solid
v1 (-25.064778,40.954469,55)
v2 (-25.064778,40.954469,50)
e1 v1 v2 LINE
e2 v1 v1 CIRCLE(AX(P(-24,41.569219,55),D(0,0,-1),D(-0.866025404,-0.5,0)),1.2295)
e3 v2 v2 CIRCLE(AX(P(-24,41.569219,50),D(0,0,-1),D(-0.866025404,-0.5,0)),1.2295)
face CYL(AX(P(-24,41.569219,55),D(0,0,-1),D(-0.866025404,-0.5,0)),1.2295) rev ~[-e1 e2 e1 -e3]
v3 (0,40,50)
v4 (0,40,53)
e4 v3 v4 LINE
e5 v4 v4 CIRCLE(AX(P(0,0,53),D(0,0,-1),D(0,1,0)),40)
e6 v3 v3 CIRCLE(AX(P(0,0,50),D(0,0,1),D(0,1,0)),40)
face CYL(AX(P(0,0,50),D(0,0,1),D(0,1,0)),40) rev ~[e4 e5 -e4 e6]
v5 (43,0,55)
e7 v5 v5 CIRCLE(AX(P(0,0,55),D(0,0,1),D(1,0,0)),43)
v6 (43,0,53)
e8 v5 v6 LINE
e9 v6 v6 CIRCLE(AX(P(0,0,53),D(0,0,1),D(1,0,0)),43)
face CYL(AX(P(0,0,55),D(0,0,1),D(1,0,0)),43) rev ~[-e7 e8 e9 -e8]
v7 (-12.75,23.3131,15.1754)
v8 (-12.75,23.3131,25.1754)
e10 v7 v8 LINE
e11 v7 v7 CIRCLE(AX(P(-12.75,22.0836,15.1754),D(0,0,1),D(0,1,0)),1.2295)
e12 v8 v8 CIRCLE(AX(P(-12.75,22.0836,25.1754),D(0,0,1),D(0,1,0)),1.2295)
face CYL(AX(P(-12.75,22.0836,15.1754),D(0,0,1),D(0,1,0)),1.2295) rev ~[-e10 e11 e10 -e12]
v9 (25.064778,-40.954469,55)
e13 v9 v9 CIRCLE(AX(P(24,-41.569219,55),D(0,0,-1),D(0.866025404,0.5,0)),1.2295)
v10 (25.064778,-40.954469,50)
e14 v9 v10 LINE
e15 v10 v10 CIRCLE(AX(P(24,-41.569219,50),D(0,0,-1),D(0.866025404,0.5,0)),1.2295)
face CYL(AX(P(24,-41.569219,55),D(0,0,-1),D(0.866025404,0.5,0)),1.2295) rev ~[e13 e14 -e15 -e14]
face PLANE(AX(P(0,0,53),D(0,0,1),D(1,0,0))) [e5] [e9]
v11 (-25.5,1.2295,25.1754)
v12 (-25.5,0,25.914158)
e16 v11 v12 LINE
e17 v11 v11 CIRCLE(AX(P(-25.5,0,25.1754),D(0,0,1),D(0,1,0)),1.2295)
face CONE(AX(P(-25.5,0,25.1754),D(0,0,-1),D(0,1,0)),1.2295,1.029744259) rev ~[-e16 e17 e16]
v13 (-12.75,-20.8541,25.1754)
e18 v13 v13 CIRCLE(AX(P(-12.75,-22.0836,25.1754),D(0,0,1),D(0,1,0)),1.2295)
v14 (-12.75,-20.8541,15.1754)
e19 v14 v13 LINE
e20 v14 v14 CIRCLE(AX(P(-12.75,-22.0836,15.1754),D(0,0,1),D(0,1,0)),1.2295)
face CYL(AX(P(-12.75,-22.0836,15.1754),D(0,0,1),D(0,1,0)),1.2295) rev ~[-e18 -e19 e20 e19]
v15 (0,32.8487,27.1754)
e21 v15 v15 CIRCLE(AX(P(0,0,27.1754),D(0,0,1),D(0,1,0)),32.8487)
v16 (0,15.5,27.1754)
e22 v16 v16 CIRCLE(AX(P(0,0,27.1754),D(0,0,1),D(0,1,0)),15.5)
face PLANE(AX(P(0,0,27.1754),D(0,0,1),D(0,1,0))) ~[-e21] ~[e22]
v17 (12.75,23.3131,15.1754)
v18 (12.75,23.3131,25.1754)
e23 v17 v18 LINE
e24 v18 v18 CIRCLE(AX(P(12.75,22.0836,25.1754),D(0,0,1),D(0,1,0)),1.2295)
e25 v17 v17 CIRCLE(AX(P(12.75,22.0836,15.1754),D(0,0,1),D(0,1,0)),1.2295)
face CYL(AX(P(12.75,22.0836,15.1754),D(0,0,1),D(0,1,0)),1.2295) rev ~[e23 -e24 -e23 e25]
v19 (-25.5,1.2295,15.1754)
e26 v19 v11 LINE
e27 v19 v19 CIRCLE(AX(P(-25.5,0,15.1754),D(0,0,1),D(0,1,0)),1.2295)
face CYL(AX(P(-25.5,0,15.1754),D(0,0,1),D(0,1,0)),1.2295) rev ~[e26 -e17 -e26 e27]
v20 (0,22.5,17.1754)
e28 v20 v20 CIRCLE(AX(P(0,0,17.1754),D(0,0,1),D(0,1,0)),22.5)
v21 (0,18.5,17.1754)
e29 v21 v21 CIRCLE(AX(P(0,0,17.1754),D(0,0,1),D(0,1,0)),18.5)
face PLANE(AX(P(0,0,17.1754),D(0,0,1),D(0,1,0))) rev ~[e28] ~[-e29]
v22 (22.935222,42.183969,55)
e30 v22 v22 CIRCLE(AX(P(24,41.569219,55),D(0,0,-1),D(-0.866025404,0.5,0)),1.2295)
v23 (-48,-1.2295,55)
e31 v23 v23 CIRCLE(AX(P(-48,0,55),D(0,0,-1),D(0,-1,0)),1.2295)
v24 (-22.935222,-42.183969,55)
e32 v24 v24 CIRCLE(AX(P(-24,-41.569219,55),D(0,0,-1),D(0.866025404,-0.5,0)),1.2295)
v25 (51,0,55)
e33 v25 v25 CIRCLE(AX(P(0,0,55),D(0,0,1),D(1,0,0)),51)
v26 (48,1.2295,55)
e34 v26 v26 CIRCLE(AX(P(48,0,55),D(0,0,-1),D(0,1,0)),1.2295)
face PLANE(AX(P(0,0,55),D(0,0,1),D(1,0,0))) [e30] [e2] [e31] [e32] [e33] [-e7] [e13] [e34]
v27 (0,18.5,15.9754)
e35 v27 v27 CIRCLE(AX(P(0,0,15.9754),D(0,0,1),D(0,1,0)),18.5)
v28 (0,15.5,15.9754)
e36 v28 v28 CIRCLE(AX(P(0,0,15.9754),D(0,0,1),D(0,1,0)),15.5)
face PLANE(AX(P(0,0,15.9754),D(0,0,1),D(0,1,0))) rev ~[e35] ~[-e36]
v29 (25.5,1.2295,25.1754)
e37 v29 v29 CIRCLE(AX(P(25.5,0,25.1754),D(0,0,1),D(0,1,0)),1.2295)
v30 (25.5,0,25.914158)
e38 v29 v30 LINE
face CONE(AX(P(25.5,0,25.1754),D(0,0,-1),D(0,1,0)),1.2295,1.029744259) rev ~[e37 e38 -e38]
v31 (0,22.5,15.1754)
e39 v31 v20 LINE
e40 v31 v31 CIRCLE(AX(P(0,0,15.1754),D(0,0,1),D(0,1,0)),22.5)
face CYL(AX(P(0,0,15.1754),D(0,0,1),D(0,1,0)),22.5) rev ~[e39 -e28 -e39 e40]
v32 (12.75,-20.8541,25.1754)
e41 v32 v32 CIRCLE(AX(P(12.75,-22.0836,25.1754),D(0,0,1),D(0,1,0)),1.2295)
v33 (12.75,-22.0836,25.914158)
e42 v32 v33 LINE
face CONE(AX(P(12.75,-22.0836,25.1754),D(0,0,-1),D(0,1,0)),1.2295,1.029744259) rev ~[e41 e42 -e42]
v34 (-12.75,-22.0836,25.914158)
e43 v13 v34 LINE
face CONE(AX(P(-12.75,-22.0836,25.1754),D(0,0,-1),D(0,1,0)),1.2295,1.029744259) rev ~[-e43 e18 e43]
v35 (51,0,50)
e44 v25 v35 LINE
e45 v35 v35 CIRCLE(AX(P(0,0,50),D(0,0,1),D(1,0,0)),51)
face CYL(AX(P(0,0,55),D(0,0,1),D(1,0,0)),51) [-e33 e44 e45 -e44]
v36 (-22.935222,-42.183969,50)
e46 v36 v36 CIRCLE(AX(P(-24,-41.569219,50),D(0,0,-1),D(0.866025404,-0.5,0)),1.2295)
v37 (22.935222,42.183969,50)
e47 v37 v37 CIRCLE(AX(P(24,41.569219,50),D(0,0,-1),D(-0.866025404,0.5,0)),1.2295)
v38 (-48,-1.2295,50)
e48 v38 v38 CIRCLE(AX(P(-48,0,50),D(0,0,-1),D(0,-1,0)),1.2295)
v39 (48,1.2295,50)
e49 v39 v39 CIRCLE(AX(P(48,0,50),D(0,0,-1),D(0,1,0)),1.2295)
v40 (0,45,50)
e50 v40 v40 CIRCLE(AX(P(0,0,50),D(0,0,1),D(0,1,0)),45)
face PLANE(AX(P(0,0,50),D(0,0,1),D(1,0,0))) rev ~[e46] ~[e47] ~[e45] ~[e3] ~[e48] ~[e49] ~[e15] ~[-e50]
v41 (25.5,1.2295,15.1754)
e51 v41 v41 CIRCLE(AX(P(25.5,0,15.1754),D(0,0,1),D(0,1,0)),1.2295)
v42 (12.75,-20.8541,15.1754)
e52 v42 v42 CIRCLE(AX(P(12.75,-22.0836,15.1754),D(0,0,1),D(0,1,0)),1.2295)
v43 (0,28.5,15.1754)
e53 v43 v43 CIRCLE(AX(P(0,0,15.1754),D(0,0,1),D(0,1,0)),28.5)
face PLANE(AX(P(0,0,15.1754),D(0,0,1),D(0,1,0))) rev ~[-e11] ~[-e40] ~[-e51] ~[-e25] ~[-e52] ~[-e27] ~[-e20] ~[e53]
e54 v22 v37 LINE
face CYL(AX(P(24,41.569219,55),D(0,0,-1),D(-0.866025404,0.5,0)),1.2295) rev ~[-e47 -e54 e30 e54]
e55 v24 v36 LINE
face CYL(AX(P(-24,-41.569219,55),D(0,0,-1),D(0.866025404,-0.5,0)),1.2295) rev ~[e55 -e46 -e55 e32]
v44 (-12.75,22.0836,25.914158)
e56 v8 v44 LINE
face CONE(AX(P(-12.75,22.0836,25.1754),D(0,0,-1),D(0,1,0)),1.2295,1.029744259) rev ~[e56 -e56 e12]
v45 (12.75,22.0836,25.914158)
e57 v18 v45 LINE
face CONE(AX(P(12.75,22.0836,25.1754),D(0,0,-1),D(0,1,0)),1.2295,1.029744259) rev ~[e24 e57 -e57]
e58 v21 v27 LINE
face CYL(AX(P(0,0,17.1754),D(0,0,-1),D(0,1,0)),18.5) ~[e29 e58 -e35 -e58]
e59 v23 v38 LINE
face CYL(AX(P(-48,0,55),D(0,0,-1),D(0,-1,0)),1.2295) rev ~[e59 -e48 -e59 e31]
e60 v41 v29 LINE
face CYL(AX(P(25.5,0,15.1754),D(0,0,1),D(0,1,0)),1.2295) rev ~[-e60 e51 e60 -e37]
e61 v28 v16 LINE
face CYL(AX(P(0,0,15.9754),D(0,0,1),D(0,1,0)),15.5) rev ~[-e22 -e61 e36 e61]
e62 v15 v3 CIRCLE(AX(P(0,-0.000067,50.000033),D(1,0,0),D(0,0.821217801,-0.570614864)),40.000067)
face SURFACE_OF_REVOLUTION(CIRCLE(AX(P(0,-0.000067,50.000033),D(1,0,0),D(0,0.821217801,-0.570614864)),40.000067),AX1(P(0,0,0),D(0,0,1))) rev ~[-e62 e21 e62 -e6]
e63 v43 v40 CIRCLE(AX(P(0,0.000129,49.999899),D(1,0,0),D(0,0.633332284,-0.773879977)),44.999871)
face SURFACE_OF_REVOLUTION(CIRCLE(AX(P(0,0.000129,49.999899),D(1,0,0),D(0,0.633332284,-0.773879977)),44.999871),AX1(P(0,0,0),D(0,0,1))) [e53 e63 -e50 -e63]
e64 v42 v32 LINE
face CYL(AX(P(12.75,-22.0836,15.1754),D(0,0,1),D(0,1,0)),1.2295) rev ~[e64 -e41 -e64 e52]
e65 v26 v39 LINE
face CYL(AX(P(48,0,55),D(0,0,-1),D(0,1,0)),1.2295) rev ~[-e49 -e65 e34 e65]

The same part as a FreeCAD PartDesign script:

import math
import FreeCAD as App
import Part
import Sketcher
from FreeCAD import Vector
Q = App.Units.Quantity

doc = App.newDocument("Part")
body = doc.addObject("PartDesign::Body", "Body")

# Sketch on YZ plane
sketch1 = body.newObject("Sketcher::SketchObject", "Sketch")
sketch1.AttachmentSupport = (doc.getObject("YZ_Plane"), [""])
sketch1.MapMode = "FlatFace"
sketch1.addGeometry([
    Part.ArcOfCircle(Part.Circle(Vector(0, 50, 0), Vector(0, 0, 1), 40), math.radians(-35), math.radians(0)),  # 0
    Part.LineSegment(Vector(32.8, 27.2, 0), Vector(15.5, 27.2, 0)),  # 1
    Part.LineSegment(Vector(15.5, 27.2, 0), Vector(15.5, 16, 0)),  # 2
    Part.LineSegment(Vector(15.5, 16, 0), Vector(18.5, 16, 0)),  # 3
    Part.LineSegment(Vector(18.5, 16, 0), Vector(18.5, 17.2, 0)),  # 4
    Part.LineSegment(Vector(18.5, 17.2, 0), Vector(22.5, 17.2, 0)),  # 5
    Part.LineSegment(Vector(22.5, 17.2, 0), Vector(22.5, 15.2, 0)),  # 6
    Part.LineSegment(Vector(22.5, 15.2, 0), Vector(28.5, 15.2, 0)),  # 7
    Part.ArcOfCircle(Part.Circle(Vector(0, 50, 0), Vector(0, 0, 1), 45), math.radians(-51), math.radians(0)),  # 8
    Part.LineSegment(Vector(45, 50, 0), Vector(45, 55, 0)),  # 9
    Part.LineSegment(Vector(45, 55, 0), Vector(40, 55, 0)),  # 10
    Part.LineSegment(Vector(40, 55, 0), Vector(40, 50, 0)),  # 11
], False)
sketch1.addConstraint([
    Sketcher.Constraint("Coincident", 0, 1, 1, 1),
    Sketcher.Constraint("Coincident", 1, 2, 2, 1),
    Sketcher.Constraint("Coincident", 2, 2, 3, 1),
    Sketcher.Constraint("Coincident", 3, 2, 4, 1),
    Sketcher.Constraint("Coincident", 4, 2, 5, 1),
    Sketcher.Constraint("Coincident", 5, 2, 6, 1),
    Sketcher.Constraint("Coincident", 6, 2, 7, 1),
    Sketcher.Constraint("Coincident", 7, 2, 8, 1),
    Sketcher.Constraint("Tangent", 8, 2, 9, 1),
    Sketcher.Constraint("Coincident", 9, 2, 10, 1),
    Sketcher.Constraint("Coincident", 10, 2, 11, 1),
    Sketcher.Constraint("Tangent", 11, 2, 0, 2),
    Sketcher.Constraint("Horizontal", 1),
    Sketcher.Constraint("Vertical", 2),
    Sketcher.Constraint("Horizontal", 3),
    Sketcher.Constraint("Vertical", 4),
    Sketcher.Constraint("Horizontal", 5),
    Sketcher.Constraint("Vertical", 6),
    Sketcher.Constraint("Horizontal", 7),
    Sketcher.Constraint("Vertical", 9),
    Sketcher.Constraint("Horizontal", 10),
    Sketcher.Constraint("Vertical", 11),
    Sketcher.Constraint("Coincident", 8, 3, 0, 3),
    Sketcher.Constraint("PointOnObject", 0, 3, -2),
    Sketcher.Constraint("Equal", 10, 9),
    Sketcher.Constraint("Radius", 8, Q("45 mm")),
    Sketcher.Constraint("DistanceX", 3, 1, 3, 2, Q("3 mm")),
    Sketcher.Constraint("DistanceX", 5, 1, 5, 2, Q("4 mm")),
    Sketcher.Constraint("DistanceX", 7, 1, 7, 2, Q("6 mm")),
    Sketcher.Constraint("DistanceX", 10, 2, 10, 1, Q("5 mm")),
    Sketcher.Constraint("DistanceY", 6, 2, 6, 1, Q("2 mm")),
    Sketcher.Constraint("DistanceY", 4, 1, 4, 2, Q("1.2 mm")),
    Sketcher.Constraint("DistanceY", -1, 1, 0, 3, Q("50 mm")),
    Sketcher.Constraint("DistanceY", 4, 2, 1, 2, Q("10 mm")),
    Sketcher.Constraint("DistanceX", 1, 2, 1, 1, Q("17.3487 mm")),
])
revolution = body.newObject("PartDesign::Revolution", "Revolution")
revolution.Profile = sketch1
revolution.ReferenceAxis = (sketch1, ["V_Axis"])
revolution.Angle = 360

# Sketch on XY plane
sketch2 = body.newObject("Sketcher::SketchObject", "Sketch001")
sketch2.AttachmentSupport = (doc.getObject("XY_Plane"), [""])
sketch2.MapMode = "FlatFace"
sketch2.AttachmentOffset = App.Placement(Vector(0, 0, 15.1754), App.Rotation())
sketch2.addGeometry([
    Part.Circle(Vector(25.5, 0, 0), Vector(0, 0, 1), 1.2),  # 0
    Part.Circle(Vector(12.8, -22.1, 0), Vector(0, 0, 1), 1.2),  # 1
    Part.Circle(Vector(-12.8, -22.1, 0), Vector(0, 0, 1), 1.2),  # 2
    Part.Circle(Vector(-25.5, 0, 0), Vector(0, 0, 1), 1.2),  # 3
    Part.Circle(Vector(-12.8, 22.1, 0), Vector(0, 0, 1), 1.2),  # 4
    Part.Circle(Vector(12.8, 22.1, 0), Vector(0, 0, 1), 1.2),  # 5
], False)
sketch2.addConstraint([
    Sketcher.Constraint("Equal", 0, 1),
    Sketcher.Constraint("Equal", 1, 2),
    Sketcher.Constraint("Equal", 2, 3),
    Sketcher.Constraint("Equal", 3, 4),
    Sketcher.Constraint("Equal", 4, 5),
    Sketcher.Constraint("Symmetric", 0, 3, 3, 3, -1, 1),
    Sketcher.Constraint("Symmetric", 1, 3, 4, 3, -1, 1),
    Sketcher.Constraint("Symmetric", 2, 3, 5, 3, -1, 1),
    Sketcher.Constraint("Symmetric", 1, 3, 2, 3, -2),
    Sketcher.Constraint("PointOnObject", 0, 3, -1),
    Sketcher.Constraint("Diameter", 0, Q("2.459 mm")),
    Sketcher.Constraint("DistanceX", 3, 3, 0, 3, Q("51 mm")),
    Sketcher.Constraint("DistanceX", 2, 3, 1, 3, Q("25.5 mm")),
    Sketcher.Constraint("DistanceY", 1, 3, -1, 1, Q("22.0836 mm")),
])
doc.recompute()
hole = body.newObject("PartDesign::Hole", "Hole")
hole.Profile = sketch2
hole.ThreadType = "None"
hole.Diameter = 2.459
hole.DepthType = "Dimension"
hole.Depth = 10
hole.DrillPoint = "Angled"
hole.DrillPointAngle = 118
hole.Reversed = True

# Sketch on XY plane
sketch3 = body.newObject("Sketcher::SketchObject", "Sketch002")
sketch3.AttachmentSupport = (doc.getObject("XY_Plane"), [""])
sketch3.MapMode = "FlatFace"
sketch3.AttachmentOffset = App.Placement(Vector(0, 0, 55), App.Rotation())
sketch3.addGeometry([
    Part.Circle(Vector(0, 0, 0), Vector(0, 0, 1), 51),
    Part.Circle(Vector(0, 0, 0), Vector(0, 0, 1), 45),
], False)
sketch3.addConstraint([
    Sketcher.Constraint("Coincident", 0, 3, -1, 1),
    Sketcher.Constraint("Coincident", 1, 3, -1, 1),
    Sketcher.Constraint("Diameter", 0, Q("102 mm")),
    Sketcher.Constraint("Diameter", 1, Q("90 mm")),
])
pad1 = body.newObject("PartDesign::Pad", "Pad")
pad1.Profile = sketch3
pad1.Length = 5
pad1.Reversed = True

# Sketch on XY plane
sketch4 = body.newObject("Sketcher::SketchObject", "Sketch003")
sketch4.AttachmentSupport = (doc.getObject("XY_Plane"), [""])
sketch4.MapMode = "FlatFace"
sketch4.AttachmentOffset = App.Placement(Vector(0, 0, 55), App.Rotation())
sketch4.addGeometry([
    Part.Circle(Vector(0, 0, 0), Vector(0, 0, 1), 43),
    Part.Circle(Vector(0, 0, 0), Vector(0, 0, 1), 40),
], False)
sketch4.addConstraint([
    Sketcher.Constraint("Coincident", 0, 3, -1, 1),
    Sketcher.Constraint("Coincident", 1, 3, -1, 1),
    Sketcher.Constraint("Diameter", 0, Q("86 mm")),
    Sketcher.Constraint("Diameter", 1, Q("80 mm")),
])
pocket1 = body.newObject("PartDesign::Pocket", "Pocket")
pocket1.Profile = sketch4
pocket1.Length = 2

# Sketch on XY plane
sketch5 = body.newObject("Sketcher::SketchObject", "Sketch004")
sketch5.AttachmentSupport = (doc.getObject("XY_Plane"), [""])
sketch5.MapMode = "FlatFace"
sketch5.AttachmentOffset = App.Placement(Vector(0, 0, 55), App.Rotation())
sketch5.addGeometry(Part.Circle(Vector(-48, 0, 0), Vector(0, 0, 1), 1.2), False)
sketch5.addConstraint([
    Sketcher.Constraint("PointOnObject", 0, 3, -1),
    Sketcher.Constraint("Diameter", 0, Q("2.459 mm")),
    Sketcher.Constraint("DistanceX", 0, 3, -1, 1, Q("48 mm")),
])
doc.recompute()
hole2 = body.newObject("PartDesign::Hole", "Hole001")
hole2.Profile = sketch5
hole2.ThreadType = "None"
hole2.Diameter = 2.459
hole2.DepthType = "ThroughAll"
doc.recompute()

polarpattern = body.newObject("PartDesign::PolarPattern", "PolarPattern")
polarpattern.Originals = [hole2]
polarpattern.Axis = (doc.getObject("Z_Axis"), [""])
polarpattern.Angle = 360
polarpattern.Occurrences = 6
body.Tip = polarpattern

doc.recompute()
